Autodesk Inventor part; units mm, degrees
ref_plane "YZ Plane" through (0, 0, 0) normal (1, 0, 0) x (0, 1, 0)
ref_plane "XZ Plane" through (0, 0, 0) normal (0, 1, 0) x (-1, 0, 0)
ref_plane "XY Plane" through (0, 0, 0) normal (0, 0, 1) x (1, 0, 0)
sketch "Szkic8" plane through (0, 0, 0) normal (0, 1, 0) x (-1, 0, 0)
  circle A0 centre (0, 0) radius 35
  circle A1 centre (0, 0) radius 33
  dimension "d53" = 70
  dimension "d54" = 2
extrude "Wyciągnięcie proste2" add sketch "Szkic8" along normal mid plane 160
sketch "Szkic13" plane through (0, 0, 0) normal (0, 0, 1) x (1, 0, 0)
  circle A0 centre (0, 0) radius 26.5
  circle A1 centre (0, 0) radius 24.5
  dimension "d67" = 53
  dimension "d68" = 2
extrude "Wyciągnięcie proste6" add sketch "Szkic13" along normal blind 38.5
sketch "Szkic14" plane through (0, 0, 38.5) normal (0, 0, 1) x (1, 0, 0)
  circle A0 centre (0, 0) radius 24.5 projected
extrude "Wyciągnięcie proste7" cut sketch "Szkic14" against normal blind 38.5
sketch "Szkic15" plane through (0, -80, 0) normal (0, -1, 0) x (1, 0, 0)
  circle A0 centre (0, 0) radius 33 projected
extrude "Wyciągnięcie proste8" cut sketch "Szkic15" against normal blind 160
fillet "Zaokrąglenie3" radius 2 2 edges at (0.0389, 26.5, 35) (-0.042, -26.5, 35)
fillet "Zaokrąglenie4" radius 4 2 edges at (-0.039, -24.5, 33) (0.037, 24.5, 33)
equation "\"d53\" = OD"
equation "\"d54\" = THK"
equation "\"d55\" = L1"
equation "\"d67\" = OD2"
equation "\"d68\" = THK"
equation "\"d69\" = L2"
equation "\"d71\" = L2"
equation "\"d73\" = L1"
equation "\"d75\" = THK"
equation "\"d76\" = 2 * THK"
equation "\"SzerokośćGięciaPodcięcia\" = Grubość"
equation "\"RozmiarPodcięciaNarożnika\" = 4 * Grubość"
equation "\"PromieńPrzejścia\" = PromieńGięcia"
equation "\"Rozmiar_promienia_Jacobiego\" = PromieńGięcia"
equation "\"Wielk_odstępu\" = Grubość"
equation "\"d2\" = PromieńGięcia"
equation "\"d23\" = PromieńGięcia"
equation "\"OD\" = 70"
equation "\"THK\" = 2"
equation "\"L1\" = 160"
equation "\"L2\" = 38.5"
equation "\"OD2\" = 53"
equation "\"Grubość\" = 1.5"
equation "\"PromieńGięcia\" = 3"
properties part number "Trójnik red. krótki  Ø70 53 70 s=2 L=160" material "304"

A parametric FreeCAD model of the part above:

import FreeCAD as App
import Part
import Sketcher

V = App.Vector


def edges_at(feature, points):
    """Names of the edges that pass closest to the given points."""
    edges = feature.Shape.Edges
    near = lambda p: min(range(len(edges)), key=lambda i: edges[i].distToShape(Part.Vertex(*p))[0])
    return sorted({f"Edge{near(p) + 1}" for p in points})

doc = App.newDocument("Part")
body = doc.addObject("PartDesign::Body", "Body")

sketch1 = body.newObject("Sketcher::SketchObject", "Sketch")
sketch1.AttachmentSupport = (doc.getObject("XZ_Plane"), [""])
sketch1.MapMode = "FlatFace"
sketch1.addGeometry(Part.Circle(V(0, 0, 0), V(0, 0, 1), 35), False)
sketch1.addGeometry(Part.Circle(V(0, 0, 0), V(0, 0, 1), 33), False)
sketch1.addConstraint(Sketcher.Constraint("Coincident", 0, 3, -1, 1))
sketch1.addConstraint(Sketcher.Constraint("Coincident", 1, 3, -1, 1))
sketch1.addConstraint(Sketcher.Constraint("Diameter", 0, 70.0))
sketch1.addConstraint(Sketcher.Constraint("Diameter", 1, 66.0))
pad1 = body.newObject("PartDesign::Pad", "Pad")
pad1.Profile = sketch1
pad1.Length = 160
pad1.Midplane = True

sketch2 = body.newObject("Sketcher::SketchObject", "Sketch001")
sketch2.AttachmentSupport = (doc.getObject("XY_Plane"), [""])
sketch2.MapMode = "FlatFace"
sketch2.addGeometry(Part.Circle(V(0, 0, 0), V(0, 0, 1), 26.5), False)
sketch2.addGeometry(Part.Circle(V(0, 0, 0), V(0, 0, 1), 24.5), False)
sketch2.addConstraint(Sketcher.Constraint("Coincident", 0, 3, -1, 1))
sketch2.addConstraint(Sketcher.Constraint("Coincident", 1, 3, -1, 1))
sketch2.addConstraint(Sketcher.Constraint("Diameter", 0, 53.0))
sketch2.addConstraint(Sketcher.Constraint("Diameter", 1, 49.0))
pad2 = body.newObject("PartDesign::Pad", "Pad001")
pad2.Profile = sketch2
pad2.Length = 38.5

sketch3 = body.newObject("Sketcher::SketchObject", "Sketch002")
sketch3.AttachmentSupport = (doc.getObject("XY_Plane"), [""])
sketch3.MapMode = "FlatFace"
sketch3.AttachmentOffset = App.Placement(V(0, 0, 38.5), App.Rotation())
sketch3.addGeometry(Part.Circle(V(0, 0, 0), V(0, 0, 1), 24.5), False)
sketch3.addConstraint(Sketcher.Constraint("Coincident", 0, 3, -1, 1))
sketch3.addConstraint(Sketcher.Constraint("Diameter", 0, 49.0))
pocket1 = body.newObject("PartDesign::Pocket", "Pocket")
pocket1.Profile = sketch3
pocket1.Length = 38.5

sketch4 = body.newObject("Sketcher::SketchObject", "Sketch003")
sketch4.AttachmentSupport = (doc.getObject("XZ_Plane"), [""])
sketch4.MapMode = "FlatFace"
sketch4.AttachmentOffset = App.Placement(V(0, 0, 80), App.Rotation())
sketch4.addGeometry(Part.Circle(V(0, 0, 0), V(0, 0, 1), 33), False)
sketch4.addConstraint(Sketcher.Constraint("Coincident", 0, 3, -1, 1))
sketch4.addConstraint(Sketcher.Constraint("Diameter", 0, 66.0))
pocket2 = body.newObject("PartDesign::Pocket", "Pocket001")
pocket2.Profile = sketch4
pocket2.Length = 160
doc.recompute()

fillet = body.newObject("PartDesign::Fillet", "Fillet")
fillet.Base = (pocket2, edges_at(pocket2, [(0.039, 26.5, 35), (-0.042, -26.5, 35)]))
fillet.Radius = 2
doc.recompute()

fillet2 = body.newObject("PartDesign::Fillet", "Fillet001")
fillet2.Base = (fillet, edges_at(fillet, [(-0.039, -24.5, 33), (0.037, 24.5, 33)]))
fillet2.Radius = 4

doc.recompute()
